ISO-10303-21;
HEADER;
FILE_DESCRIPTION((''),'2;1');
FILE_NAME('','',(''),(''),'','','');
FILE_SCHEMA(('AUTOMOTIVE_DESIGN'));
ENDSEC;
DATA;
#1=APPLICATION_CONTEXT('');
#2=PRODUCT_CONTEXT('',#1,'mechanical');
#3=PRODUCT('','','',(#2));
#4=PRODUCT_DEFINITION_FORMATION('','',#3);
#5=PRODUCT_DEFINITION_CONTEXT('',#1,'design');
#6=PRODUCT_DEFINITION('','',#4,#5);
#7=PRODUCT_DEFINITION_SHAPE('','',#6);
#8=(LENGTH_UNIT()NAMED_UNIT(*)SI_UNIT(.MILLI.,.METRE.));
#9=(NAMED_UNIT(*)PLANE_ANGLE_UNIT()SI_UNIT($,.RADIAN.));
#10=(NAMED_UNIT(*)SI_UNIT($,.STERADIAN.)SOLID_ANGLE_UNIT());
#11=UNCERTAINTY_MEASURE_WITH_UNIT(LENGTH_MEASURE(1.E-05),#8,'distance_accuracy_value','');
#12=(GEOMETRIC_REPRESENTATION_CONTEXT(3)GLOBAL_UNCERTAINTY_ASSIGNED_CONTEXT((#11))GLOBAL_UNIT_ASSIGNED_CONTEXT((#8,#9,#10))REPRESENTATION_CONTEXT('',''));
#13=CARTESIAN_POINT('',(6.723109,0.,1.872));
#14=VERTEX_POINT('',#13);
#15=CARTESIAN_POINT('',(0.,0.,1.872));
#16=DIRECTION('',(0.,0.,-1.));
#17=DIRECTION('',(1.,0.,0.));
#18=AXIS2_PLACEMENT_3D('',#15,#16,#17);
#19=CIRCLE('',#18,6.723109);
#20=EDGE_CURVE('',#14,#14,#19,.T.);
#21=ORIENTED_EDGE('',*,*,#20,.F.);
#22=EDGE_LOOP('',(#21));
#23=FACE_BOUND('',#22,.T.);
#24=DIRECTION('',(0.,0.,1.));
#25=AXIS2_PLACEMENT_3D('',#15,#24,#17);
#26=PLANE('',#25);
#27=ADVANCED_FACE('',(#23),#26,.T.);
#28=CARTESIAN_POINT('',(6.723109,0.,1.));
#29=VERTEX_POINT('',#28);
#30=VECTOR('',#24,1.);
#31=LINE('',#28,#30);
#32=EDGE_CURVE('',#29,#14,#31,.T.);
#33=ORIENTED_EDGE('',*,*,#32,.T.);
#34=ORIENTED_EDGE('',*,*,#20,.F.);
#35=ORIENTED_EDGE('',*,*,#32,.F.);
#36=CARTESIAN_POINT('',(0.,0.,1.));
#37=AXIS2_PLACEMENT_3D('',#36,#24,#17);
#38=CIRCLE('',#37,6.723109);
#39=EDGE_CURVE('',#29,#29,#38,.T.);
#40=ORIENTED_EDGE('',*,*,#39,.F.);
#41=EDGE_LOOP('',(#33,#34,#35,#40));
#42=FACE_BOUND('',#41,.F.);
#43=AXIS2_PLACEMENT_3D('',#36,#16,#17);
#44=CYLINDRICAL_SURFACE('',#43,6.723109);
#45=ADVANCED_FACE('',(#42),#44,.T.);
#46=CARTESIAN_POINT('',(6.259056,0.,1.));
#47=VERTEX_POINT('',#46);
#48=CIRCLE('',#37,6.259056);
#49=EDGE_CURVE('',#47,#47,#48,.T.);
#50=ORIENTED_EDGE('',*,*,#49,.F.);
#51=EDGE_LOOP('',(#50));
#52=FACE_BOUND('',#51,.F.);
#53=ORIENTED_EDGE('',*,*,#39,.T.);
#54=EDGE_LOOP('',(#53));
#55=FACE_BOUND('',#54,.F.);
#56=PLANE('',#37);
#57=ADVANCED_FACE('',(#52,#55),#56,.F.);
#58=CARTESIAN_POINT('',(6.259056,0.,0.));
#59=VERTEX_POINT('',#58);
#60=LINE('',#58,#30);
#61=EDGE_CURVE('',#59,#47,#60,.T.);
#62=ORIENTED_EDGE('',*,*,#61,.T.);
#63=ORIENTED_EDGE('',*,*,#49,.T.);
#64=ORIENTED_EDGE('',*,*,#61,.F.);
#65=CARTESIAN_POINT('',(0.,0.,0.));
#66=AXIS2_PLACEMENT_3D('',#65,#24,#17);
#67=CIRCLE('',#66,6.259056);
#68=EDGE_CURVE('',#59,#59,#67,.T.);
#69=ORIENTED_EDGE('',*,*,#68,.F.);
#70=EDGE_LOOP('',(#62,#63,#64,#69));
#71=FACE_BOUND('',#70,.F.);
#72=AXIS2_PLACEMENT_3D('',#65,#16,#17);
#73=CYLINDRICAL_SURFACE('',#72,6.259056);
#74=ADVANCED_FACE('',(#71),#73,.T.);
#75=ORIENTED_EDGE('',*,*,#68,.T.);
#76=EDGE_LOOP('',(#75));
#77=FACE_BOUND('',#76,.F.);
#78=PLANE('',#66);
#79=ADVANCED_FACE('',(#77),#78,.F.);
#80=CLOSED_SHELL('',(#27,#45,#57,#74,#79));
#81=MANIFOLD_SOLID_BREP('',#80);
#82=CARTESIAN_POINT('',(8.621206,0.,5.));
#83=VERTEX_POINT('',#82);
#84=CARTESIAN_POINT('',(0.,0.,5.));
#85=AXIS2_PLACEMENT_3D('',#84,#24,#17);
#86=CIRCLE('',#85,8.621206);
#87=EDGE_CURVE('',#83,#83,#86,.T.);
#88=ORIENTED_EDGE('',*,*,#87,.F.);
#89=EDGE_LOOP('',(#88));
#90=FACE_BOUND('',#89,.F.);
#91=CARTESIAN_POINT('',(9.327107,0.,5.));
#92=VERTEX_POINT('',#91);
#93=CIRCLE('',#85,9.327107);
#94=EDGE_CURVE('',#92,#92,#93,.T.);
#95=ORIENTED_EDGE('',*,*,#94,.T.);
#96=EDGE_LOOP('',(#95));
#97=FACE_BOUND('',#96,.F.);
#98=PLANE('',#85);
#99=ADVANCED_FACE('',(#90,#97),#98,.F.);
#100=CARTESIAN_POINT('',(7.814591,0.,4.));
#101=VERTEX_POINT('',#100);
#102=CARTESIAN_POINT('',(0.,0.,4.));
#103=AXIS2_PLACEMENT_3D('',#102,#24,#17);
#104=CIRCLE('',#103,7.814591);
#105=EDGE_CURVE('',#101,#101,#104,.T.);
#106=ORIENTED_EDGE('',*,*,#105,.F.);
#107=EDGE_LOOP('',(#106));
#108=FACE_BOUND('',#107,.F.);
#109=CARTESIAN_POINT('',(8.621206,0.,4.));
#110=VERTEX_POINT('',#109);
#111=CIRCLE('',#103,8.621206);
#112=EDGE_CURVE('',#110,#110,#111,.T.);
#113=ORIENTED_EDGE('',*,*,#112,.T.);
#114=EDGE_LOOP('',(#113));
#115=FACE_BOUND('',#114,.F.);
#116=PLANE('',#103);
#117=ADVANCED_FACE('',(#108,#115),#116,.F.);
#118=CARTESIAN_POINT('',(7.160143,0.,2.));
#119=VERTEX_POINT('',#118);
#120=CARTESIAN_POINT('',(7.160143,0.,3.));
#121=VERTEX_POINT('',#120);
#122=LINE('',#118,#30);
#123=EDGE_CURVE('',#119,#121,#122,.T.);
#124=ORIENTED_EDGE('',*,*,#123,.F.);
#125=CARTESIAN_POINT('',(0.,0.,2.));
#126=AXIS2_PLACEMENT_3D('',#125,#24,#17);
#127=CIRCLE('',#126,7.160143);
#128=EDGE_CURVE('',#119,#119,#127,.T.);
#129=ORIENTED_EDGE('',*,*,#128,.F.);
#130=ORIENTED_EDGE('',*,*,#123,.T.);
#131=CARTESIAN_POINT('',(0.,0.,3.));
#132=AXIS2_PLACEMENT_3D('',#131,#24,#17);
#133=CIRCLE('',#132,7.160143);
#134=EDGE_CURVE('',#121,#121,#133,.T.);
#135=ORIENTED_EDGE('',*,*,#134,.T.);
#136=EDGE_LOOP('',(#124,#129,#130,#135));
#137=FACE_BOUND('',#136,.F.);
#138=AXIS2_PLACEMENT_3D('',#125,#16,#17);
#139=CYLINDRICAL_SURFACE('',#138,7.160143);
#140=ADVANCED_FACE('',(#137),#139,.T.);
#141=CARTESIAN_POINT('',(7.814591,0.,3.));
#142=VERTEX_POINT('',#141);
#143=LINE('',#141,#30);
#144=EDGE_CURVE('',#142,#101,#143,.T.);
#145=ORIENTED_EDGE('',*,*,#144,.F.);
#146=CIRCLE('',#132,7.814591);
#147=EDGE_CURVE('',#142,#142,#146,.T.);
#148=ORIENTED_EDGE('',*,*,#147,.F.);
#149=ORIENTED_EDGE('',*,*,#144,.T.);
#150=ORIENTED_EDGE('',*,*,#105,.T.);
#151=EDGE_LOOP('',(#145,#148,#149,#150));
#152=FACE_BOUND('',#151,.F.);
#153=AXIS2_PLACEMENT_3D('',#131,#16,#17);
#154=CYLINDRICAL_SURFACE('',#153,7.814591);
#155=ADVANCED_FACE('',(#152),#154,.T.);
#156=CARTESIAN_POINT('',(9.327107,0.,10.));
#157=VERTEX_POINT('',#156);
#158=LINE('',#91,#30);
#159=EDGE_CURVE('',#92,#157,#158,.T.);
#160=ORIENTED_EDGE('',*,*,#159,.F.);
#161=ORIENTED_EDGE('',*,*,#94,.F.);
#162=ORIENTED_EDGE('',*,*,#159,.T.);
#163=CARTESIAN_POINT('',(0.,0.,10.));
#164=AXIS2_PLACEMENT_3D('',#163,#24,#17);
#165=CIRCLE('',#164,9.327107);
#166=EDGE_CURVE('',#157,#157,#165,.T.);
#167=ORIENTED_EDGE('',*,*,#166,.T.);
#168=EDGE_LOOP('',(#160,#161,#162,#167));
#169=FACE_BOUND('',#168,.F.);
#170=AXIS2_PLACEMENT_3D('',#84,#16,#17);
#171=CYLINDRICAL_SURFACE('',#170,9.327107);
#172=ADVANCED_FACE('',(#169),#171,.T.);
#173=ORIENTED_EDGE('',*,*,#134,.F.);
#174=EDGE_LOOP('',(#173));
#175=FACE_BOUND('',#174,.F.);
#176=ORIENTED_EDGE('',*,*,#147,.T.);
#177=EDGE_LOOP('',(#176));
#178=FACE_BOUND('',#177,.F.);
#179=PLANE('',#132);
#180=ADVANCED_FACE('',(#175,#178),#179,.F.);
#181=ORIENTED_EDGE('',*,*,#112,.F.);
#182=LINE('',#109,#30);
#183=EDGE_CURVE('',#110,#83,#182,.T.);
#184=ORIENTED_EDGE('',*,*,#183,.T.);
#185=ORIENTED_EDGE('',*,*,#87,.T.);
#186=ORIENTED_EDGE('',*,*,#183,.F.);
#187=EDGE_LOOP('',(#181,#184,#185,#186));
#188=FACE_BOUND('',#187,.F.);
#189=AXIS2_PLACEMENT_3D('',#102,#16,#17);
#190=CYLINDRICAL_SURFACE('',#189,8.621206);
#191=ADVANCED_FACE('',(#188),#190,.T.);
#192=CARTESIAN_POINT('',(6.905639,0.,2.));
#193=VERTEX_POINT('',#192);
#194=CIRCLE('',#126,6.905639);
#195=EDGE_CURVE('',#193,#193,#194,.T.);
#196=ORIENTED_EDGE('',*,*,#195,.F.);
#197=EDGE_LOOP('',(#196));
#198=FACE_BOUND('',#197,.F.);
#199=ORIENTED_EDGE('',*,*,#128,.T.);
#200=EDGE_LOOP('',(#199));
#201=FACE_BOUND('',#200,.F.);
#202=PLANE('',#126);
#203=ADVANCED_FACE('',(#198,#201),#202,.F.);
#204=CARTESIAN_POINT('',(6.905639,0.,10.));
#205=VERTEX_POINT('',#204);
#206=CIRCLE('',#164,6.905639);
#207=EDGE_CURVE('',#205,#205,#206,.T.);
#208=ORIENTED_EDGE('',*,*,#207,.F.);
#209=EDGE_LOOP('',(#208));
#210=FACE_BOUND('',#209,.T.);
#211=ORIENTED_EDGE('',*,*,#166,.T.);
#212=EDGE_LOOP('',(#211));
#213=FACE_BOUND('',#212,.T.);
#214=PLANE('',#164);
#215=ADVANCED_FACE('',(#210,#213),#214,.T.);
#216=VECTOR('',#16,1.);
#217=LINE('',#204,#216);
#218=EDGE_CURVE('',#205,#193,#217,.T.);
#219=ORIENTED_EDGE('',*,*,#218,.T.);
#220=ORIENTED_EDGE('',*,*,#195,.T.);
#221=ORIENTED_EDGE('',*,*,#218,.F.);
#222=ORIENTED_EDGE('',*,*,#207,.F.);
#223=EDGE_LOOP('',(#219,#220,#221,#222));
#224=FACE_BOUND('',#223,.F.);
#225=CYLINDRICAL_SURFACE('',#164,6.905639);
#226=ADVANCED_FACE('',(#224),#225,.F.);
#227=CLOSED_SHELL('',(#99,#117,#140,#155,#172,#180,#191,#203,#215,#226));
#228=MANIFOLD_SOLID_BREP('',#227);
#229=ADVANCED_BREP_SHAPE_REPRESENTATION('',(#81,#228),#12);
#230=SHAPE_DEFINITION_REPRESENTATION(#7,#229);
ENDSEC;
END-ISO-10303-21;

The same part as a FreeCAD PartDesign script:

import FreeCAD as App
import Part
import Sketcher

doc = App.newDocument("Part")
body = doc.addObject("PartDesign::Body", "Body")
body.AllowCompound = True

# Sketch on XY plane
sketch1 = body.newObject("Sketcher::SketchObject", "Sketch")
sketch1.AttachmentSupport = (doc.getObject("XY_Plane"), [""])
sketch1.MapMode = "FlatFace"
sketch1.addGeometry(Part.Circle(App.Vector(0, 0, 0), App.Vector(0, 0, 1), 6), False)
sketch1.addConstraint(Sketcher.Constraint("Coincident", 0, 3, -1, 1))
sketch1.addConstraint(Sketcher.Constraint("Diameter", 0, 12.518112))
pad1 = body.newObject("PartDesign::Pad", "Pad")
pad1.Profile = sketch1
pad1.Length = 1

# Sketch on XY plane
sketch2 = body.newObject("Sketcher::SketchObject", "Sketch001")
sketch2.AttachmentSupport = (doc.getObject("XY_Plane"), [""])
sketch2.MapMode = "FlatFace"
sketch2.AttachmentOffset = App.Placement(App.Vector(0, 0, 1), App.Rotation())
sketch2.addGeometry(Part.Circle(App.Vector(0, 0, 0), App.Vector(0, 0, 1), 7), False)
sketch2.addConstraint(Sketcher.Constraint("Coincident", 0, 3, -1, 1))
sketch2.addConstraint(Sketcher.Constraint("Diameter", 0, 13.446218))
pad2 = body.newObject("PartDesign::Pad", "Pad001")
pad2.Profile = sketch2
pad2.Length = 1

# Sketch on XY plane
sketch3 = body.newObject("Sketcher::SketchObject", "Sketch002")
sketch3.AttachmentSupport = (doc.getObject("XY_Plane"), [""])
sketch3.MapMode = "FlatFace"
sketch3.AttachmentOffset = App.Placement(App.Vector(0, 0, 2), App.Rotation())
sketch3.addGeometry(Part.Circle(App.Vector(0, 0, 0), App.Vector(0, 0, 1), 7), False)
sketch3.addConstraint(Sketcher.Constraint("Coincident", 0, 3, -1, 1))
sketch3.addConstraint(Sketcher.Constraint("Diameter", 0, 14.320286))
pad3 = body.newObject("PartDesign::Pad", "Pad002")
pad3.Profile = sketch3
pad3.Length = 1

# Sketch on XY plane
sketch4 = body.newObject("Sketcher::SketchObject", "Sketch003")
sketch4.AttachmentSupport = (doc.getObject("XY_Plane"), [""])
sketch4.MapMode = "FlatFace"
sketch4.AttachmentOffset = App.Placement(App.Vector(0, 0, 3), App.Rotation())
sketch4.addGeometry(Part.Circle(App.Vector(0, 0, 0), App.Vector(0, 0, 1), 8), False)
sketch4.addConstraint(Sketcher.Constraint("Coincident", 0, 3, -1, 1))
sketch4.addConstraint(Sketcher.Constraint("Diameter", 0, 15.629182))
pad4 = body.newObject("PartDesign::Pad", "Pad003")
pad4.Profile = sketch4
pad4.Length = 1

# Sketch on XY plane
sketch5 = body.newObject("Sketcher::SketchObject", "Sketch004")
sketch5.AttachmentSupport = (doc.getObject("XY_Plane"), [""])
sketch5.MapMode = "FlatFace"
sketch5.AttachmentOffset = App.Placement(App.Vector(0, 0, 4), App.Rotation())
sketch5.addGeometry(Part.Circle(App.Vector(0, 0, 0), App.Vector(0, 0, 1), 9), False)
sketch5.addConstraint(Sketcher.Constraint("Coincident", 0, 3, -1, 1))
sketch5.addConstraint(Sketcher.Constraint("Diameter", 0, 17.242412))
pad5 = body.newObject("PartDesign::Pad", "Pad004")
pad5.Profile = sketch5
pad5.Length = 1

# Sketch on XY plane
sketch6 = body.newObject("Sketcher::SketchObject", "Sketch005")
sketch6.AttachmentSupport = (doc.getObject("XY_Plane"), [""])
sketch6.MapMode = "FlatFace"
sketch6.AttachmentOffset = App.Placement(App.Vector(0, 0, 5), App.Rotation())
sketch6.addGeometry(Part.Circle(App.Vector(0, 0, 0), App.Vector(0, 0, 1), 9), False)
sketch6.addConstraint(Sketcher.Constraint("Coincident", 0, 3, -1, 1))
sketch6.addConstraint(Sketcher.Constraint("Diameter", 0, 18.654214))
pad6 = body.newObject("PartDesign::Pad", "Pad005")
pad6.Profile = sketch6
pad6.Length = 5

# Sketch on XY plane
sketch7 = body.newObject("Sketcher::SketchObject", "Sketch006")
sketch7.AttachmentSupport = (doc.getObject("XY_Plane"), [""])
sketch7.MapMode = "FlatFace"
sketch7.AttachmentOffset = App.Placement(App.Vector(0, 0, 10), App.Rotation())
sketch7.addGeometry(Part.Circle(App.Vector(0, 0, 0), App.Vector(0, 0, 1), 7), False)
sketch7.addConstraint(Sketcher.Constraint("Coincident", 0, 3, -1, 1))
sketch7.addConstraint(Sketcher.Constraint("Diameter", 0, 13.811278))
pocket1 = body.newObject("PartDesign::Pocket", "Pocket")
pocket1.Profile = sketch7
pocket1.Length = 8.128

doc.recompute()
